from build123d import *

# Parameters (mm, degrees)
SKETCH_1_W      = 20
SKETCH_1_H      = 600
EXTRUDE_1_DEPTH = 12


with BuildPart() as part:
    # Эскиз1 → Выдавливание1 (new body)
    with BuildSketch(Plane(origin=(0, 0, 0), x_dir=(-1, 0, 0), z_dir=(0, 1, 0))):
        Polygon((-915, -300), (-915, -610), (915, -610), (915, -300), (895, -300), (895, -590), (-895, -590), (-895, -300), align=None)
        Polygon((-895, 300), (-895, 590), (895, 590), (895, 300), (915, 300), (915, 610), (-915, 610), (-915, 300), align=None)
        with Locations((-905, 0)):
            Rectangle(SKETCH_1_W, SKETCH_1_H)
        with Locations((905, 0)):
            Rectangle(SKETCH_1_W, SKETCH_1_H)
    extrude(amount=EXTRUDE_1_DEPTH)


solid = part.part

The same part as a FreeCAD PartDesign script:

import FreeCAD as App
import Part
import Sketcher

V = App.Vector
Q = App.Units.Quantity

doc = App.newDocument("Part")
params = doc.addObject("Spreadsheet::Sheet", "Params")
for row, (alias, value) in enumerate([
    ("sketch1_width", "1830 mm"),
    ("sketch1_width2", "1790 mm"),
    ("sketch1_height", "1220 mm"),
    ("sketch1_height2", "1180 mm"),
    ("pad1_length", "12 mm"),
], start=1):
    params.set(f"A{row}", alias)
    params.set(f"B{row}", "=" + value)
    params.setAlias(f"B{row}", alias)

body = doc.addObject("PartDesign::Body", "Body")

# Sketch on XZ plane
sketch1 = doc.addObject("Sketcher::SketchObject", "Sketch")
body.addObject(sketch1)
sketch1.AttachmentSupport = (doc.XZ_Plane, [""])
sketch1.MapMode = "FlatFace"
sketch1.addGeometry(Part.LineSegment(V(915, -610, 0), V(-915, -610, 0)), False)
sketch1.addGeometry(Part.LineSegment(V(-915, -610, 0), V(-915, 610, 0)), False)
sketch1.addGeometry(Part.LineSegment(V(-915, 610, 0), V(915, 610, 0)), False)
sketch1.addGeometry(Part.LineSegment(V(915, 610, 0), V(915, -610, 0)), False)
sketch1.addGeometry(Part.LineSegment(V(-895, -590, 0), V(895, -590, 0)), False)
sketch1.addGeometry(Part.LineSegment(V(895, -590, 0), V(895, 590, 0)), False)
sketch1.addGeometry(Part.LineSegment(V(895, 590, 0), V(-895, 590, 0)), False)
sketch1.addGeometry(Part.LineSegment(V(-895, 590, 0), V(-895, -590, 0)), False)
sketch1.addConstraint(Sketcher.Constraint("Coincident", 0, 2, 1, 1))
sketch1.addConstraint(Sketcher.Constraint("Coincident", 1, 2, 2, 1))
sketch1.addConstraint(Sketcher.Constraint("Coincident", 2, 2, 3, 1))
sketch1.addConstraint(Sketcher.Constraint("Coincident", 3, 2, 0, 1))
sketch1.addConstraint(Sketcher.Constraint("Coincident", 4, 2, 5, 1))
sketch1.addConstraint(Sketcher.Constraint("Coincident", 5, 2, 6, 1))
sketch1.addConstraint(Sketcher.Constraint("Coincident", 6, 2, 7, 1))
sketch1.addConstraint(Sketcher.Constraint("Coincident", 7, 2, 4, 1))
sketch1.addConstraint(Sketcher.Constraint("Horizontal", 0))
sketch1.addConstraint(Sketcher.Constraint("Vertical", 1))
sketch1.addConstraint(Sketcher.Constraint("Horizontal", 2))
sketch1.addConstraint(Sketcher.Constraint("Vertical", 3))
sketch1.addConstraint(Sketcher.Constraint("Horizontal", 4))
sketch1.addConstraint(Sketcher.Constraint("Vertical", 5))
sketch1.addConstraint(Sketcher.Constraint("Horizontal", 6))
sketch1.addConstraint(Sketcher.Constraint("Vertical", 7))
sketch1.addConstraint(Sketcher.Constraint("Symmetric", 0, 2, 2, 2, -1, 1))
sketch1.addConstraint(Sketcher.Constraint("Symmetric", 4, 2, 6, 2, -1, 1))
sketch1.addConstraint(Sketcher.Constraint("DistanceX", 0, 2, 0, 1, Q("1830 mm")))
sketch1.addConstraint(Sketcher.Constraint("DistanceX", 4, 1, 4, 2, Q("1790 mm")))
sketch1.addConstraint(Sketcher.Constraint("DistanceY", 1, 1, 1, 2, Q("1220 mm")))
sketch1.addConstraint(Sketcher.Constraint("DistanceY", 5, 1, 5, 2, Q("1180 mm")))
sketch1.setExpression("Constraints[18]", "Params.sketch1_width")
sketch1.setExpression("Constraints[19]", "Params.sketch1_width2")
sketch1.setExpression("Constraints[20]", "Params.sketch1_height")
sketch1.setExpression("Constraints[21]", "Params.sketch1_height2")
pad1 = doc.addObject("PartDesign::Pad", "Pad")
body.addObject(pad1)
pad1.Profile = sketch1
pad1.setExpression("Length", "Params.pad1_length")
pad1.Reversed = True

doc.recompute()
